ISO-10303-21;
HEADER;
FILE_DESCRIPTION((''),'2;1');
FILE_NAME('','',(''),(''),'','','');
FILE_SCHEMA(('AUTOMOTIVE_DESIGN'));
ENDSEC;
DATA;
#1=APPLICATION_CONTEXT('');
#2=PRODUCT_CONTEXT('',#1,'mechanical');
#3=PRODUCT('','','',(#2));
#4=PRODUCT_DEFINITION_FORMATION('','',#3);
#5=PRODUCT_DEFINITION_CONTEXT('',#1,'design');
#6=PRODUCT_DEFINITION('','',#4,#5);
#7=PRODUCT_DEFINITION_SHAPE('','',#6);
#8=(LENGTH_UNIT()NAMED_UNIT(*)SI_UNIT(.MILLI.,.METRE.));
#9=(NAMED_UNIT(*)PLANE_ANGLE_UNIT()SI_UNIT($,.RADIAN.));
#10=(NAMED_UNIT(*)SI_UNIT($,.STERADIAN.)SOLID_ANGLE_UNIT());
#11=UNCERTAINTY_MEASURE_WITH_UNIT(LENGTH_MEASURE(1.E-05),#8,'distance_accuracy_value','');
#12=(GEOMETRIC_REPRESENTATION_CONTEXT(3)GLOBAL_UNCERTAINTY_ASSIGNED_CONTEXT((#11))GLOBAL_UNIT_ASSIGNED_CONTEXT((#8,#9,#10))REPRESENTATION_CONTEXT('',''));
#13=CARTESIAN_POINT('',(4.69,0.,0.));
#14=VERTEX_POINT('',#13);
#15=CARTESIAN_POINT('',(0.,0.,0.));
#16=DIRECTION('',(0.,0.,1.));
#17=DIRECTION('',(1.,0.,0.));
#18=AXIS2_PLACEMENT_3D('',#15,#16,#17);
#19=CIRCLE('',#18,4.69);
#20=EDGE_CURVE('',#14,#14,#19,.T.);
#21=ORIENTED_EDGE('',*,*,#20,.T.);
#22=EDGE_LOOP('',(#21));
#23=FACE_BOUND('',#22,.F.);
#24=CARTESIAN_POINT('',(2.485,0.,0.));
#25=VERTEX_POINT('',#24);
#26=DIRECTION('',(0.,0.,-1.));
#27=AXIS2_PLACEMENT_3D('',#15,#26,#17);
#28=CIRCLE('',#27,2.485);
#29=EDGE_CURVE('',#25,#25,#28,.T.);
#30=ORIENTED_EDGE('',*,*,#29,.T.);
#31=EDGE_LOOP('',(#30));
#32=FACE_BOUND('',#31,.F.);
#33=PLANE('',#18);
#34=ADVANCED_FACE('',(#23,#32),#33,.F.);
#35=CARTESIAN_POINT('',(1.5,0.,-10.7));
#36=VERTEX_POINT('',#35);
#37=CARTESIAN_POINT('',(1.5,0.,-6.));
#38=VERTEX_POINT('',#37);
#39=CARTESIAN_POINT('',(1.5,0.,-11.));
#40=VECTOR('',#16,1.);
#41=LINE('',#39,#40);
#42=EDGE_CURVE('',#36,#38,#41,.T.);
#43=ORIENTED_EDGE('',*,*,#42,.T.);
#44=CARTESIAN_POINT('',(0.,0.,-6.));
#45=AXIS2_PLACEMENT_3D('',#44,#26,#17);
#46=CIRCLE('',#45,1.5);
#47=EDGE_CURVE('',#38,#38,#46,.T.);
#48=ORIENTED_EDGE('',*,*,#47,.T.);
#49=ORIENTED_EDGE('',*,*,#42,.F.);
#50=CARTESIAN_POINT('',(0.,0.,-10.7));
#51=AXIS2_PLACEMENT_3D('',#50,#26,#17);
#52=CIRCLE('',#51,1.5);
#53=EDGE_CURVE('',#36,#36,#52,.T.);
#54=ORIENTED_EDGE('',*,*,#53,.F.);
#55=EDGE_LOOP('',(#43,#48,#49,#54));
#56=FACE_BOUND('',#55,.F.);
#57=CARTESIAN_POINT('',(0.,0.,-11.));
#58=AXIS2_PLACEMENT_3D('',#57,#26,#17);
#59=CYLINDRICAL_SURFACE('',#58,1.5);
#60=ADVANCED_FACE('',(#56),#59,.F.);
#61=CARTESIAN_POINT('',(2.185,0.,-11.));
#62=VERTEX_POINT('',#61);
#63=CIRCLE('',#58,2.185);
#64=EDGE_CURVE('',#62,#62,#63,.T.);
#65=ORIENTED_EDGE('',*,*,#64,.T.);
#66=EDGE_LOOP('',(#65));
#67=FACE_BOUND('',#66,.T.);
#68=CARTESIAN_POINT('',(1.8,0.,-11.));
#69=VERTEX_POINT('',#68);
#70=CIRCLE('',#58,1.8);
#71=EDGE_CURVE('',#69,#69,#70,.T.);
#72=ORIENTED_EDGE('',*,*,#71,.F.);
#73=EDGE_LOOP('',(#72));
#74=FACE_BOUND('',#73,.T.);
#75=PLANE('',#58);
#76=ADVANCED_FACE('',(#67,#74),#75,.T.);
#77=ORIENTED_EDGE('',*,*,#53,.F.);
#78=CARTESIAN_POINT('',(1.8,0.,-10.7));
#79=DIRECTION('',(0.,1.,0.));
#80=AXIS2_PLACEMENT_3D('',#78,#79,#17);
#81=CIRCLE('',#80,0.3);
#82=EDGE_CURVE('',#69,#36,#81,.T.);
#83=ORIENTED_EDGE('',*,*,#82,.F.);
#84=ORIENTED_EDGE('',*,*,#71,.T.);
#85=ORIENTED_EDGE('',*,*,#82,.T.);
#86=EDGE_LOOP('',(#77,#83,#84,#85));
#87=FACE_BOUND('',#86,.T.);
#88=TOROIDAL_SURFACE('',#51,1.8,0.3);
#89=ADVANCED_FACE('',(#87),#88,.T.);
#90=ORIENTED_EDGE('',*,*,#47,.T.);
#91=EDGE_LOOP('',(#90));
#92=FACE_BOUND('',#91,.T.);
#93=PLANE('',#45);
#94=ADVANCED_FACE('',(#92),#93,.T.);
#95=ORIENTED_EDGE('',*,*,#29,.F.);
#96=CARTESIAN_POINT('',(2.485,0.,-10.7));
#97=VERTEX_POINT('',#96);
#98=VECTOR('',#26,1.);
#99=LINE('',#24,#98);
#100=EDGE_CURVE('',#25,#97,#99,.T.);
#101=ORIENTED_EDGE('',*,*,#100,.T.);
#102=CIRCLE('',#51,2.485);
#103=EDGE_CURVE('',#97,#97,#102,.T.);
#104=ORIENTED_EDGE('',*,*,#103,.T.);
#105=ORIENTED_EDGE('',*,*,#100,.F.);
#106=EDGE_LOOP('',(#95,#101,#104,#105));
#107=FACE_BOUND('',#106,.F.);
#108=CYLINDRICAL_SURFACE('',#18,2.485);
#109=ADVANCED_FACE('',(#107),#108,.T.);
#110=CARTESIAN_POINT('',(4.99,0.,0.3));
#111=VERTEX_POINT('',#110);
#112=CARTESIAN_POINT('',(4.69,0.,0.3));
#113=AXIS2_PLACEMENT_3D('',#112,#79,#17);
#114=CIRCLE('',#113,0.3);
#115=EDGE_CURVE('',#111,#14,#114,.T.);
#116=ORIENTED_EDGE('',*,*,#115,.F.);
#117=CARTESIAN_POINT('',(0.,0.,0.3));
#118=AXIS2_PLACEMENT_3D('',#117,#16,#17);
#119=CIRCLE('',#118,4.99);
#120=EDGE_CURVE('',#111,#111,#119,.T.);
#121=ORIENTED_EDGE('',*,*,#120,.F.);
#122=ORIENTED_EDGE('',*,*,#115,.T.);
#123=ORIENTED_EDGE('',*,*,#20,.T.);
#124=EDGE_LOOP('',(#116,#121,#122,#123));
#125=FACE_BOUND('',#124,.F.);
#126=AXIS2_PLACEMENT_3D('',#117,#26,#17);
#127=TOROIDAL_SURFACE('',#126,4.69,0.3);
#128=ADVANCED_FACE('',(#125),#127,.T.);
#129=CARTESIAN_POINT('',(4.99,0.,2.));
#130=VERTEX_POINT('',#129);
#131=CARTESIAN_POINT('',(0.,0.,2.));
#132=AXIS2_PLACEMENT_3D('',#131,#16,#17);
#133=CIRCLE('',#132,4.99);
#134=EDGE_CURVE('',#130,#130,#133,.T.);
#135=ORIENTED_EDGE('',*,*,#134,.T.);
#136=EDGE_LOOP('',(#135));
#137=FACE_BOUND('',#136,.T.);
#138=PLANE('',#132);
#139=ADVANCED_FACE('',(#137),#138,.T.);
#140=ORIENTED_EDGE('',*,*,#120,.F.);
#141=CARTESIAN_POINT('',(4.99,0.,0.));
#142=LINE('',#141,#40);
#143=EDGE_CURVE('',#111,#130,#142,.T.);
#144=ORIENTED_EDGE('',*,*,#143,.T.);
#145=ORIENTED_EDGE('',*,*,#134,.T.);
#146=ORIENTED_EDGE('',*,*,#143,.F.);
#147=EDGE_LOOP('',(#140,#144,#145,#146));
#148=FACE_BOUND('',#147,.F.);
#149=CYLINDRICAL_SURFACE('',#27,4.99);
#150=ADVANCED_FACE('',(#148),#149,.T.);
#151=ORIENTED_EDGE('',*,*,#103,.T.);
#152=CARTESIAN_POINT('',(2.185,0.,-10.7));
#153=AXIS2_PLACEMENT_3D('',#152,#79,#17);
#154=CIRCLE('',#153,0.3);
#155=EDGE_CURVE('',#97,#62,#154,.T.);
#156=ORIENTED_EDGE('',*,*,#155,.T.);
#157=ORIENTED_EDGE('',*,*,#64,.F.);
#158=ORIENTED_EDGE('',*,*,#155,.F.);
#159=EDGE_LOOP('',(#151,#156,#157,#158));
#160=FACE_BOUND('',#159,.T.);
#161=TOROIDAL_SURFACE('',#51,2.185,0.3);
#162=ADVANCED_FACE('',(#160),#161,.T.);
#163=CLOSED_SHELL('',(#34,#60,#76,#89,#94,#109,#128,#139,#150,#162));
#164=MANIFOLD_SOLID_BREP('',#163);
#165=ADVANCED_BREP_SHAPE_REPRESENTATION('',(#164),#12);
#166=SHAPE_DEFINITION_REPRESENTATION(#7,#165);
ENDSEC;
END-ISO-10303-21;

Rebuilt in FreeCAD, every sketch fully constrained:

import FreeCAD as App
import Part
import Sketcher
from FreeCAD import Vector


def edges_at(feature, points):
    """Names of the edges that pass closest to the given points."""
    edges = feature.Shape.Edges
    near = lambda p: min(range(len(edges)), key=lambda i: edges[i].distToShape(Part.Vertex(*p))[0])
    return sorted({f"Edge{near(p) + 1}" for p in points})

doc = App.newDocument("Part")
params = doc.addObject("Spreadsheet::Sheet", "Params")
for row, (alias, value) in enumerate([
    ("sketch1_diameter", "9.98 mm"),
    ("pad1_length", "2 mm"),
    ("sketch2_diameter", "4.97 mm"),
    ("pad2_length", "11 mm"),
    ("sketch3_diameter", "3 mm"),
    ("pocket1_length", "5 mm"),
    ("fillet_radius", "0.3 mm"),
], start=1):
    params.set(f"A{row}", alias)
    params.set(f"B{row}", "=" + value)
    params.setAlias(f"B{row}", alias)

body = doc.addObject("PartDesign::Body", "Body")

sketch1 = body.newObject("Sketcher::SketchObject", "Sketch")
sketch1.AttachmentSupport = (doc.getObject("XY_Plane"), [""])
sketch1.MapMode = "FlatFace"
sketch1.addGeometry(Part.Circle(Vector(0, 0, 0), Vector(0, 0, 1), 4.99), False)
sketch1.addConstraint(Sketcher.Constraint("Coincident", 0, 3, -1, 1))
sketch1.addConstraint(Sketcher.Constraint("Diameter", 0, 9.98))
sketch1.setExpression("Constraints[1]", "Params.sketch1_diameter")
pad1 = body.newObject("PartDesign::Pad", "Pad")
pad1.Profile = sketch1
pad1.setExpression("Length", "Params.pad1_length")

sketch2 = body.newObject("Sketcher::SketchObject", "Sketch001")
sketch2.AttachmentSupport = (doc.getObject("XY_Plane"), [""])
sketch2.MapMode = "FlatFace"
sketch2.addGeometry(Part.Circle(Vector(0, 0, 0), Vector(0, 0, 1), 2.485), False)
sketch2.addConstraint(Sketcher.Constraint("Coincident", 0, 3, -1, 1))
sketch2.addConstraint(Sketcher.Constraint("Diameter", 0, 4.97))
sketch2.setExpression("Constraints[1]", "Params.sketch2_diameter")
pad2 = body.newObject("PartDesign::Pad", "Pad001")
pad2.Profile = sketch2
pad2.setExpression("Length", "Params.pad2_length")
pad2.Reversed = True

sketch3 = body.newObject("Sketcher::SketchObject", "Sketch002")
sketch3.AttachmentSupport = (doc.getObject("XY_Plane"), [""])
sketch3.MapMode = "FlatFace"
sketch3.AttachmentOffset = App.Placement(Vector(0, 0, -11), App.Rotation())
sketch3.addGeometry(Part.Circle(Vector(0, 0, 0), Vector(0, 0, 1), 1.5), False)
sketch3.addConstraint(Sketcher.Constraint("Coincident", 0, 3, -1, 1))
sketch3.addConstraint(Sketcher.Constraint("Diameter", 0, 3.0))
sketch3.setExpression("Constraints[1]", "Params.sketch3_diameter")
pocket1 = body.newObject("PartDesign::Pocket", "Pocket")
pocket1.Profile = sketch3
pocket1.setExpression("Length", "Params.pocket1_length")
pocket1.Reversed = True
doc.recompute()

fillet = body.newObject("PartDesign::Fillet", "Fillet")
fillet.Base = (pocket1, edges_at(pocket1, [(-2.485, 0, -11), (-1.5, 0, -11), (-4.99, 0, 0)]))
fillet.setExpression("Radius", "Params.fillet_radius")

doc.recompute()
